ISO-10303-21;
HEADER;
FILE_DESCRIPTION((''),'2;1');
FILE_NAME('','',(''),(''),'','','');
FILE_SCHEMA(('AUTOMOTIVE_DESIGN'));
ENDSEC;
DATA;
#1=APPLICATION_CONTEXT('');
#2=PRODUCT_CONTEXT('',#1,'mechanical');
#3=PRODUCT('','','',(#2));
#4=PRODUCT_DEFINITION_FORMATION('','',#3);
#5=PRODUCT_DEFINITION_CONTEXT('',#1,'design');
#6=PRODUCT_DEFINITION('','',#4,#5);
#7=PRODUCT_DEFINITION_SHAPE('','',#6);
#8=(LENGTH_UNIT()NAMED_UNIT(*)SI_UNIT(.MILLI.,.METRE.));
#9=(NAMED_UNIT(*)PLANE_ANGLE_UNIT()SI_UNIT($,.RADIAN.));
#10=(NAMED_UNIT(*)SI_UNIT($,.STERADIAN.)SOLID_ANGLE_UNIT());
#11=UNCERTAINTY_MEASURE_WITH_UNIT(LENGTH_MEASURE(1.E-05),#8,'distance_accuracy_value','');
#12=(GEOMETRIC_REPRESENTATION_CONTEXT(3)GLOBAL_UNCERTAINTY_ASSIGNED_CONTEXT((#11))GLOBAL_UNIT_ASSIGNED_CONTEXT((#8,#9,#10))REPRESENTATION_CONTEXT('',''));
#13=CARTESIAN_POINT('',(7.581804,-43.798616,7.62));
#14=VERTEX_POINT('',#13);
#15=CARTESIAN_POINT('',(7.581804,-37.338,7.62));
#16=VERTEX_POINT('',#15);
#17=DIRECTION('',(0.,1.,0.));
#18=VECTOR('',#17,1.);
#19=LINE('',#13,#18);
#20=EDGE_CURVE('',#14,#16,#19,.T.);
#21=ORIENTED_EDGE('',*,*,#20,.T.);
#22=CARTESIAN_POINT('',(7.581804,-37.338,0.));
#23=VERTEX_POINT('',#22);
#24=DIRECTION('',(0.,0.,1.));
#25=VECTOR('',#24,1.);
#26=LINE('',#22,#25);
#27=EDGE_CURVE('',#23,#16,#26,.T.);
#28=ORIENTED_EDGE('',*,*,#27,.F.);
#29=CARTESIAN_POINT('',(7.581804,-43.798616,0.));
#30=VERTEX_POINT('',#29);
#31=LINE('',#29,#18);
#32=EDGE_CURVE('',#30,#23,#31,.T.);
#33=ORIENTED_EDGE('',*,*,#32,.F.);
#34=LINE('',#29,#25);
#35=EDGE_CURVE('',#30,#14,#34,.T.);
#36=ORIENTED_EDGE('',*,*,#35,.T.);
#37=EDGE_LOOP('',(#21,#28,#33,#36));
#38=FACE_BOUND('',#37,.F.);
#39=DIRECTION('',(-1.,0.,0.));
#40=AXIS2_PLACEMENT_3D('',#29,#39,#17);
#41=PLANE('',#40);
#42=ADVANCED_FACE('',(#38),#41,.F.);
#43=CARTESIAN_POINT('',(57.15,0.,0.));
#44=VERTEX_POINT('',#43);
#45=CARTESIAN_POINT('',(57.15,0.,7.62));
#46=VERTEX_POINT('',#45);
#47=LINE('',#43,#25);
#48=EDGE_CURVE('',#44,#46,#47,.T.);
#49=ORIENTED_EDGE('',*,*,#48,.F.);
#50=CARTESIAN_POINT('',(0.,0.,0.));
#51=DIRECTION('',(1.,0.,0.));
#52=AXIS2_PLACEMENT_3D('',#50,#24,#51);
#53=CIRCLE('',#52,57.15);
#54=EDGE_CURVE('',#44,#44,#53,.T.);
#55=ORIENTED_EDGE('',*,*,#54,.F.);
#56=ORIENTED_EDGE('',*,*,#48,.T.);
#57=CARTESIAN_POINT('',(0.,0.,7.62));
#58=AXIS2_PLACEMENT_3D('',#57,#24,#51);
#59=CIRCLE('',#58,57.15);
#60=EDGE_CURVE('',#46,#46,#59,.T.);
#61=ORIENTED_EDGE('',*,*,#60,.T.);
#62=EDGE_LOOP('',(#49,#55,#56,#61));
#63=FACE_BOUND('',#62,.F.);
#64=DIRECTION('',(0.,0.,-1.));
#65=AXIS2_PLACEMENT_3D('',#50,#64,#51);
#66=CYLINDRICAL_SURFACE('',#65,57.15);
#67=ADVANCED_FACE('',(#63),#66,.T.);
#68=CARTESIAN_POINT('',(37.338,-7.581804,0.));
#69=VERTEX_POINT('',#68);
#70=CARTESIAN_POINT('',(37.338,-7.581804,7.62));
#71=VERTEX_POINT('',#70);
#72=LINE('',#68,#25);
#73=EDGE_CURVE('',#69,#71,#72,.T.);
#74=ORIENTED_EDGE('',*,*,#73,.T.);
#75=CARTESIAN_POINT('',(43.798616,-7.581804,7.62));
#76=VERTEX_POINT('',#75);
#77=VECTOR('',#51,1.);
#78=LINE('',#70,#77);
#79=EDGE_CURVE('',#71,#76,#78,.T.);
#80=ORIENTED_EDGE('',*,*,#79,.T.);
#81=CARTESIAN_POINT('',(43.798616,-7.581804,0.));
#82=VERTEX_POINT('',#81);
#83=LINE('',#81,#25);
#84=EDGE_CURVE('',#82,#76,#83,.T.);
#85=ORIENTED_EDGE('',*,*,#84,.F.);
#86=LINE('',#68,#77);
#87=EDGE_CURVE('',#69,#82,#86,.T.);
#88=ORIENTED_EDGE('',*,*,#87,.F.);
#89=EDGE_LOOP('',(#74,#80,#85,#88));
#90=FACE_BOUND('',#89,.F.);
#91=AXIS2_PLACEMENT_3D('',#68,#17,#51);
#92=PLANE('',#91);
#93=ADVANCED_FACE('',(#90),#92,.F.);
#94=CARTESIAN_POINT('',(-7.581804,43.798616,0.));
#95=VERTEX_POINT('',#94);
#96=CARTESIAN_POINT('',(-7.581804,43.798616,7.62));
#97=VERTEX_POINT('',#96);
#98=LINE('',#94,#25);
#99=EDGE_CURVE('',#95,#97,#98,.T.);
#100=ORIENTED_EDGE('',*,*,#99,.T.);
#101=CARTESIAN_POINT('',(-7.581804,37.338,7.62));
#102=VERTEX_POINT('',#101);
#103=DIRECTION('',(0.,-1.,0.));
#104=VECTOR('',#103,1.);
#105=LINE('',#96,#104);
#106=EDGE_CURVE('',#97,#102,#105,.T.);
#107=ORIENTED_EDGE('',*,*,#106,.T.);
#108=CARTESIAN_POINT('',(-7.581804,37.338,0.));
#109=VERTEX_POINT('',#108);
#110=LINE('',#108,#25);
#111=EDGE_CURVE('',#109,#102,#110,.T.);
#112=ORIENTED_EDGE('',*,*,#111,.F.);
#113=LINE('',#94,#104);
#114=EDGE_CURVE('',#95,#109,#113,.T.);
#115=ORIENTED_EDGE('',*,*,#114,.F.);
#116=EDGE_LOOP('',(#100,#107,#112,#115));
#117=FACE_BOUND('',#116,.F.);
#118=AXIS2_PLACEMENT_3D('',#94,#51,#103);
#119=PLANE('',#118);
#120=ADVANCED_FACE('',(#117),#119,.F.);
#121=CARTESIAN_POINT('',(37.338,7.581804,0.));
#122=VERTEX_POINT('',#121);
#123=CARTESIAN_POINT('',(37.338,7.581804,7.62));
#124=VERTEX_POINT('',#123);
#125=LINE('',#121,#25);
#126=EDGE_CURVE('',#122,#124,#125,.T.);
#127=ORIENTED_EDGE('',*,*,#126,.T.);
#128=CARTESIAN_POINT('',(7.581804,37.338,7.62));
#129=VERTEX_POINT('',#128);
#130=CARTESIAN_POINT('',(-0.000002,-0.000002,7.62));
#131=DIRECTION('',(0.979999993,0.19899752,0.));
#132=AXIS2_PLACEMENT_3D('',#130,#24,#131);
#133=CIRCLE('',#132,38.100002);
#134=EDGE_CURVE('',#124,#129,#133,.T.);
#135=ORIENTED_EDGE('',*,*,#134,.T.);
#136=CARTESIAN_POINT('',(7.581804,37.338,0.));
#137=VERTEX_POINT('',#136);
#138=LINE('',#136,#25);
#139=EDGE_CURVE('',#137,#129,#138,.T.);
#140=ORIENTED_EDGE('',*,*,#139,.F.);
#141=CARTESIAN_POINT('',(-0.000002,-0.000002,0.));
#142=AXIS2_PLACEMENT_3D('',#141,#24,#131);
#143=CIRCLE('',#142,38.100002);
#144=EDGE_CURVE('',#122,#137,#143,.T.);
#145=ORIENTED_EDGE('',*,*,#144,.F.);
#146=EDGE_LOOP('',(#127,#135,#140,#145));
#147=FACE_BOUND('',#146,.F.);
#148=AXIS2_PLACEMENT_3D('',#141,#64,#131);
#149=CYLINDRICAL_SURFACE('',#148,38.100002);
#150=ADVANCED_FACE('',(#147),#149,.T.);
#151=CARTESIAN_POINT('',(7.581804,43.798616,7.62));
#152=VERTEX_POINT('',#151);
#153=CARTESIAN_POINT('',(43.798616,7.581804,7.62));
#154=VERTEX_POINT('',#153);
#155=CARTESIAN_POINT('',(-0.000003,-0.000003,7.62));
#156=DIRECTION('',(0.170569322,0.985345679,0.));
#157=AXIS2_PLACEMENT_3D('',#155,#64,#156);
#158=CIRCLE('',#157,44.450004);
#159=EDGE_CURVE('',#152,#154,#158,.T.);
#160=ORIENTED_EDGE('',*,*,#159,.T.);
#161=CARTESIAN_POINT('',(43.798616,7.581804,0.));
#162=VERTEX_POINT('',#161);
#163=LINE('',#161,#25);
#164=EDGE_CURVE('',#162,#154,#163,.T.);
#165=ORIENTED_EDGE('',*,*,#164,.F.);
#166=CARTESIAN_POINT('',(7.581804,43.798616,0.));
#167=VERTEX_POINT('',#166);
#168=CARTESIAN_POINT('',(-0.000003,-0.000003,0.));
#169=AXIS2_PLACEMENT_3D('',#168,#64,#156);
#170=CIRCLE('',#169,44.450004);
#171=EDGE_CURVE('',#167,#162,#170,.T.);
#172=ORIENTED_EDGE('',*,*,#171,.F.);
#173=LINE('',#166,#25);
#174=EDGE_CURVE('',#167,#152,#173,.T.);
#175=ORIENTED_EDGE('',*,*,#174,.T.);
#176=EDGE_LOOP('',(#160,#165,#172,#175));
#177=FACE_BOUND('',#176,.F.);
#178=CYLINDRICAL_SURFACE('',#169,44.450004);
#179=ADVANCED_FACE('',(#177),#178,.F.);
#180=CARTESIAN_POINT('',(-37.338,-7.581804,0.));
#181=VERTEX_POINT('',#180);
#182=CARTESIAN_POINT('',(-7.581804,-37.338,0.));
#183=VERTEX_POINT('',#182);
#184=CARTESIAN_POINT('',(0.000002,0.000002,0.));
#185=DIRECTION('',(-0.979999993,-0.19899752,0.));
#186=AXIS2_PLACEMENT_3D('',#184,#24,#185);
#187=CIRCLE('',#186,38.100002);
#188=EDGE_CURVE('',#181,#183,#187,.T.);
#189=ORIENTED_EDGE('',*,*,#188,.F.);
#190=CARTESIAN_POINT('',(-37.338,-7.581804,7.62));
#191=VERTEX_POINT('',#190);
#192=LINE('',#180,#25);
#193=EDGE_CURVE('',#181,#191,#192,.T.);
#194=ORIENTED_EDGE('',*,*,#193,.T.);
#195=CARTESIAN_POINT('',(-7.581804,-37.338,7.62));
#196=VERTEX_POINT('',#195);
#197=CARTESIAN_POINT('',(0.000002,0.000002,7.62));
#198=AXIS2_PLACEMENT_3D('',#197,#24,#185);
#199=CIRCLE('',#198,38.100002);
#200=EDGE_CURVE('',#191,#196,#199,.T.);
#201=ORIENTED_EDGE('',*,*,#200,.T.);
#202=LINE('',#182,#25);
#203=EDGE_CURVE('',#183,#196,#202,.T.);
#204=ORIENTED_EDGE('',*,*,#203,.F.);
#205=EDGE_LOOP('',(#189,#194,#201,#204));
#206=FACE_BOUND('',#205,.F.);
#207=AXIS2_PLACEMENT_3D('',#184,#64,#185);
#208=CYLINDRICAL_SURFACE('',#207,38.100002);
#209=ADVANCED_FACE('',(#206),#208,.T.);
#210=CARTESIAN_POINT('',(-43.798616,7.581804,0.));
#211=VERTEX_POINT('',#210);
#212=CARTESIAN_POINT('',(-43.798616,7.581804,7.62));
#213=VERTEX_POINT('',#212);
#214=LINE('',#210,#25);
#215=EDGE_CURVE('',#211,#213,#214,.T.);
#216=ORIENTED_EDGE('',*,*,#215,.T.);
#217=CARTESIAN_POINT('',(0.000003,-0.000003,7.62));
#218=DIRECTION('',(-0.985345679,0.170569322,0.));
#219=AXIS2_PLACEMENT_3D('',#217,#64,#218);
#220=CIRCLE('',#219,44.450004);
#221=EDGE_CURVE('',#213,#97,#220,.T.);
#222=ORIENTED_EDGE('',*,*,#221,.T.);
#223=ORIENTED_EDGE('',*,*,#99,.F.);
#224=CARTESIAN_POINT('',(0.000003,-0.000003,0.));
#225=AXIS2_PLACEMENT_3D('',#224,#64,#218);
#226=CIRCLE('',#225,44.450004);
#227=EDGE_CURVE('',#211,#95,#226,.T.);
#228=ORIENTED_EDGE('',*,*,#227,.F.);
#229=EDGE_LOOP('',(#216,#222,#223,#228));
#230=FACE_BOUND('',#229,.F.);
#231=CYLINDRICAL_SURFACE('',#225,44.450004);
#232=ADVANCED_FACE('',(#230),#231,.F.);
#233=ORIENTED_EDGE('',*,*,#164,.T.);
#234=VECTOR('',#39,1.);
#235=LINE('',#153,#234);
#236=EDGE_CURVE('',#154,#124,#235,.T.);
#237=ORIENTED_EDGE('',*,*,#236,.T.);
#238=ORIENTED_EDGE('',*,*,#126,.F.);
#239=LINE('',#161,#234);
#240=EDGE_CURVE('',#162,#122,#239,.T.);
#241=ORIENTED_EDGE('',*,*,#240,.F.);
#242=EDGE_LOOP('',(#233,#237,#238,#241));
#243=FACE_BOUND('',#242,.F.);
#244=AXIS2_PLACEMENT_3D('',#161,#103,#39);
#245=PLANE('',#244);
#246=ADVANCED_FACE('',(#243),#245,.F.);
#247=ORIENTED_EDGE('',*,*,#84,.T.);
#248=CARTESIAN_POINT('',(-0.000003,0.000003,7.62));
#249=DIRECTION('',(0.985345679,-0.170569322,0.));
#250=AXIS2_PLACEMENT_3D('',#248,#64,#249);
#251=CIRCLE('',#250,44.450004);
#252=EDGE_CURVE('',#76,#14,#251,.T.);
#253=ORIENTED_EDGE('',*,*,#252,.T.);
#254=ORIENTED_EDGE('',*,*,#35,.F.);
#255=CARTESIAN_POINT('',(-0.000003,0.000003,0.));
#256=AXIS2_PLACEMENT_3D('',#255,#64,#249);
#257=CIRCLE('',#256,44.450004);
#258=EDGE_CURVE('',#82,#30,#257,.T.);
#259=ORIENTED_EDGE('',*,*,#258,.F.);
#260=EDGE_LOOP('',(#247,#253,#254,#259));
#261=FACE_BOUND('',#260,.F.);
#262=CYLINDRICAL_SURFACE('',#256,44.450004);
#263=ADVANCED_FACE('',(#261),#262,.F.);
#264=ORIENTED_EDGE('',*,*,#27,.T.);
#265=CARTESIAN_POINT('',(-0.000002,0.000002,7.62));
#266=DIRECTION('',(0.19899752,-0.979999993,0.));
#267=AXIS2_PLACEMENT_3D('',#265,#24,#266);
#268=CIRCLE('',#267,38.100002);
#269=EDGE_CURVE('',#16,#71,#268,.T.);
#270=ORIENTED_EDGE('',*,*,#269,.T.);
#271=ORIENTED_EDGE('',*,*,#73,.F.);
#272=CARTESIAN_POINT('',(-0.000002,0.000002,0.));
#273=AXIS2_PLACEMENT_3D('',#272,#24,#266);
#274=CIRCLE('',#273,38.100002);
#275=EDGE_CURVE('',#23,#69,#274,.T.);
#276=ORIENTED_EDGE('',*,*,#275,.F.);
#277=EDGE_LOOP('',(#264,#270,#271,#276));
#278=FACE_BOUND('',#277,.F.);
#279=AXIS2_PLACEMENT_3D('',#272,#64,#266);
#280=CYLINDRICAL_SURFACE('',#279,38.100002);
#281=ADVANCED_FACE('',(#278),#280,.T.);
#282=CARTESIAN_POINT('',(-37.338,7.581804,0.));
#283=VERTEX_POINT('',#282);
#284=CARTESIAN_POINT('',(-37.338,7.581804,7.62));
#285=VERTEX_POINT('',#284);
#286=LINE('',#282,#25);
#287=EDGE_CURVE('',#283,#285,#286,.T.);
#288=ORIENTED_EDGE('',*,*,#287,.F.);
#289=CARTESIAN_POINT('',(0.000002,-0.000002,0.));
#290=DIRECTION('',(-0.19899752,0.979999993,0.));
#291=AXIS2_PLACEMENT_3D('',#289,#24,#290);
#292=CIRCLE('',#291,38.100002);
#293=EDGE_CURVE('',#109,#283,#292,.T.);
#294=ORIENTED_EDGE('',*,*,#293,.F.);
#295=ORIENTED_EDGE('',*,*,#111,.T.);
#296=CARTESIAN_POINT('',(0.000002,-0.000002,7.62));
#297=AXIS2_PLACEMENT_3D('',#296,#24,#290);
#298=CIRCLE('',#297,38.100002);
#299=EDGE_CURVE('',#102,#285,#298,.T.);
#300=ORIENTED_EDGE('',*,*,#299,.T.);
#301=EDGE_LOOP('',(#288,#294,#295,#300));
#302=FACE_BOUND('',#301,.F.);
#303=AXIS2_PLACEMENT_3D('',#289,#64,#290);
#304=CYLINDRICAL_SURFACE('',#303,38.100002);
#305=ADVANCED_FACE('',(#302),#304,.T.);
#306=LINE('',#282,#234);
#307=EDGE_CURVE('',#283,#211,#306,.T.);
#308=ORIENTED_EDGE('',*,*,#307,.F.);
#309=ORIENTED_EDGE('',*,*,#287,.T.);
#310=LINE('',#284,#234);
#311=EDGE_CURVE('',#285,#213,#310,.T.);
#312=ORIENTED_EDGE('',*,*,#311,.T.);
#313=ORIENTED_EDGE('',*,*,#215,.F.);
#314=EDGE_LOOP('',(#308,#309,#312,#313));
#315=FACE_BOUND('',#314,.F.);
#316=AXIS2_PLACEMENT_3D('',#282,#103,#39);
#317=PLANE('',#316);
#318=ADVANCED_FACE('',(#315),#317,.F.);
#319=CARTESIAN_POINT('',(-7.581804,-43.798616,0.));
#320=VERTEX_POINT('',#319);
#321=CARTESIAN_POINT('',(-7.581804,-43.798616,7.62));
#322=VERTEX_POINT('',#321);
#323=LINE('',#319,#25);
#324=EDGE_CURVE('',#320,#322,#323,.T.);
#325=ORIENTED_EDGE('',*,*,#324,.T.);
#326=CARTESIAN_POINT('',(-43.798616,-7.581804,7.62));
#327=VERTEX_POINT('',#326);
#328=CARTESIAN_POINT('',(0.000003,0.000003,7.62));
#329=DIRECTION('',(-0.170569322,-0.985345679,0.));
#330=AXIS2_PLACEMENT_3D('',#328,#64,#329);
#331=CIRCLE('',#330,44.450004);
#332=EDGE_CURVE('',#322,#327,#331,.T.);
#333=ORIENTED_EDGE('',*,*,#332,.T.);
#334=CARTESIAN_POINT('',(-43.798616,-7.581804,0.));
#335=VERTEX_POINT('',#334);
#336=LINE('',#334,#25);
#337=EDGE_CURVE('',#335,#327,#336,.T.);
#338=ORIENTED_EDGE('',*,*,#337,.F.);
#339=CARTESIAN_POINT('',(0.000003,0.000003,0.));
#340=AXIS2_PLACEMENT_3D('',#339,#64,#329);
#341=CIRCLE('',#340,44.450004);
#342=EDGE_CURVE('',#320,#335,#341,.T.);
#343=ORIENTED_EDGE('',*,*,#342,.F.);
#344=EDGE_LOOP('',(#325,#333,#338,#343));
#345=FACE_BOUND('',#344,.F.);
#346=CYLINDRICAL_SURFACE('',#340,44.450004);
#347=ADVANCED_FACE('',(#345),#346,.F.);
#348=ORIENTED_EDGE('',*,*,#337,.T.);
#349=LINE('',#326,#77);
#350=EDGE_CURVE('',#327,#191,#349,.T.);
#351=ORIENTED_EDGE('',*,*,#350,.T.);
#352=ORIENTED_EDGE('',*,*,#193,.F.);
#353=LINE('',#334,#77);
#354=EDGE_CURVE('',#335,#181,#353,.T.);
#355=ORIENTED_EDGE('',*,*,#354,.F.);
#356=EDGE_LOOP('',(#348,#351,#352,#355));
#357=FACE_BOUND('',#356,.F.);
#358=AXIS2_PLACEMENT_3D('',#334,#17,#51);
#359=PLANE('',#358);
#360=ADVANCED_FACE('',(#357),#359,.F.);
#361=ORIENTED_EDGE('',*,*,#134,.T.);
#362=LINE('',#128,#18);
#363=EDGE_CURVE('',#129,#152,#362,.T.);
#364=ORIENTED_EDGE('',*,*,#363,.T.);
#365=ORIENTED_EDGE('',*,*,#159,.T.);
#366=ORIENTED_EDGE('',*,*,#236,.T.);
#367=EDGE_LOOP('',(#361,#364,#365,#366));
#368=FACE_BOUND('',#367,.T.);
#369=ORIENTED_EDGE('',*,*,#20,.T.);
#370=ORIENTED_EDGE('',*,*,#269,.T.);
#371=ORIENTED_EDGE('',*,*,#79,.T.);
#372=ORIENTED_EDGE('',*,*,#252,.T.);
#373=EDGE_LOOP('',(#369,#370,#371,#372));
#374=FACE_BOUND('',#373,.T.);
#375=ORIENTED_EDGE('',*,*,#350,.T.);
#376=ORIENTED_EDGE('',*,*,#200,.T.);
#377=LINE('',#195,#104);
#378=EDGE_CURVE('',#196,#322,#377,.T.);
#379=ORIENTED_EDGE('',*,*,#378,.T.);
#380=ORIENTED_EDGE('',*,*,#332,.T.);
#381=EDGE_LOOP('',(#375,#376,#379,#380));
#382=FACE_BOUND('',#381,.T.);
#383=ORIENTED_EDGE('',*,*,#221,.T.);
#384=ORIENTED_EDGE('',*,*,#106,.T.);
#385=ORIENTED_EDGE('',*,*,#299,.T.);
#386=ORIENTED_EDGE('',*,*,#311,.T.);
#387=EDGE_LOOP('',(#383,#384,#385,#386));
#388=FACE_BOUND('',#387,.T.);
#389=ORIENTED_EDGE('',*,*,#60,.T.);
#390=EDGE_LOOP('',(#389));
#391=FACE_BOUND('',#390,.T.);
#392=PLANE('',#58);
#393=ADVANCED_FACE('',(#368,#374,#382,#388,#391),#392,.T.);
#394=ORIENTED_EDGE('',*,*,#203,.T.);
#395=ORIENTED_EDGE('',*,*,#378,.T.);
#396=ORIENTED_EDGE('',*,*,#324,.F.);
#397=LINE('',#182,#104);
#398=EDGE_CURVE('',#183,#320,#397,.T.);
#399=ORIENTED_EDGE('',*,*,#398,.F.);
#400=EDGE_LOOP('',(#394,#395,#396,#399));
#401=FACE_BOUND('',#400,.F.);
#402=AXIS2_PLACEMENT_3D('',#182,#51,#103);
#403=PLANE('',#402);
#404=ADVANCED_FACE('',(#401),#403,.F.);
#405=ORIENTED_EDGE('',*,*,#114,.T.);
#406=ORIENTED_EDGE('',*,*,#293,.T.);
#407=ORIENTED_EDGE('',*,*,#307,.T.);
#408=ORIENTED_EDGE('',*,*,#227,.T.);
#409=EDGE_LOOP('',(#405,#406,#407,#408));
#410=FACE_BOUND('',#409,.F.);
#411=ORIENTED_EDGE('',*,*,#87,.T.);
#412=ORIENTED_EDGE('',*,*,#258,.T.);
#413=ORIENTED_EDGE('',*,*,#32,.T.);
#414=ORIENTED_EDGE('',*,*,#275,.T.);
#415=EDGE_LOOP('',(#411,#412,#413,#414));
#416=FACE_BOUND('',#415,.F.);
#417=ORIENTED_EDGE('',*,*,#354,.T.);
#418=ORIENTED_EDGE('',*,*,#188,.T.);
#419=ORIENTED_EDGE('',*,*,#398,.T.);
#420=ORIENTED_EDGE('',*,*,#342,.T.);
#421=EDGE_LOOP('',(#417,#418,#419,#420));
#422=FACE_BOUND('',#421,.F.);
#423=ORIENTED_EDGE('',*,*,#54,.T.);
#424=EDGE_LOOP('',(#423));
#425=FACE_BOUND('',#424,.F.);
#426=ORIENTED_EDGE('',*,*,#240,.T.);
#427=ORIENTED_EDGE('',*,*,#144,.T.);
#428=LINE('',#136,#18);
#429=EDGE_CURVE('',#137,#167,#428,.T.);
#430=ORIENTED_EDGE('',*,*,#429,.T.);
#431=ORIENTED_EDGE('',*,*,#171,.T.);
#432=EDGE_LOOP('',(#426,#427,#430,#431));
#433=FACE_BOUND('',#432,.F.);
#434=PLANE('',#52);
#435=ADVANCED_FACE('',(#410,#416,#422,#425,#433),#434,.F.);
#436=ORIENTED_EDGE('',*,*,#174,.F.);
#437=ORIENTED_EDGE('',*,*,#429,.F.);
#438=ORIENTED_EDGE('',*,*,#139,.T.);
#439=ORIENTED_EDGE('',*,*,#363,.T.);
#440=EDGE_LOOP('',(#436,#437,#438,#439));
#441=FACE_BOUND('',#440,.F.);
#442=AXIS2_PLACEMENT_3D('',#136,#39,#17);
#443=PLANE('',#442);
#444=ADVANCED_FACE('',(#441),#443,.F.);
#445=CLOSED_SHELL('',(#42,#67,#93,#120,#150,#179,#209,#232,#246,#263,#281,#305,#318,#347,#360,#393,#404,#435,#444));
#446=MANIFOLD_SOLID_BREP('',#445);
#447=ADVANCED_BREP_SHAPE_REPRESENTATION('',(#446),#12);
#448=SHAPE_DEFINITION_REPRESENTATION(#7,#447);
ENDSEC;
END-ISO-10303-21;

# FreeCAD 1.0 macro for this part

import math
import FreeCAD as App
import Part
import Sketcher

V = App.Vector
Q = App.Units.Quantity

doc = App.newDocument("Part")
params = doc.addObject("Spreadsheet::Sheet", "Params")
for row, (alias, value) in enumerate([
    ("sketch1_diameter", "4.5 in"),
    ("sketch1_radius", "1.5000001 in"),
    ("sketch1_radius2", "1.7500001 in"),
    ("pad1_length", "0.3 in"),
], start=1):
    params.set(f"A{row}", alias)
    params.set(f"B{row}", "=" + value)
    params.setAlias(f"B{row}", alias)

body = doc.addObject("PartDesign::Body", "Body")

# Sketch on XY plane
sketch1 = body.newObject("Sketcher::SketchObject", "Sketch")
sketch1.AttachmentSupport = (doc.getObject("XY_Plane"), [""])
sketch1.MapMode = "FlatFace"
sketch1.addGeometry([
    Part.Circle(V(0, 0, 0), V(0, 0, 1), 57),  # 0
    Part.ArcOfCircle(Part.Circle(V(0, 0, 0), V(0, 0, 1), 44), math.radians(100), math.radians(170)),  # 1
    Part.LineSegment(V(-8, 44, 0), V(-8, 37, 0)),  # 2
    Part.ArcOfCircle(Part.Circle(V(0, 0, 0), V(0, 0, 1), 38), math.radians(101), math.radians(169)),  # 3
    Part.LineSegment(V(-37, 8, 0), V(-44, 8, 0)),  # 4
    Part.ArcOfCircle(Part.Circle(V(0, 0, 0), V(0, 0, 1), 38), math.radians(-169), math.radians(-101)),  # 5
    Part.LineSegment(V(-8, -37, 0), V(-8, -44, 0)),  # 6
    Part.ArcOfCircle(Part.Circle(V(0, 0, 0), V(0, 0, 1), 44), math.radians(-170), math.radians(-100)),  # 7
    Part.LineSegment(V(-44, -8, 0), V(-37, -8, 0)),  # 8
    Part.ArcOfCircle(Part.Circle(V(0, 0, 0), V(0, 0, 1), 38), math.radians(-79), math.radians(-11)),  # 9
    Part.LineSegment(V(37, -8, 0), V(44, -8, 0)),  # 10
    Part.ArcOfCircle(Part.Circle(V(0, 0, 0), V(0, 0, 1), 44), math.radians(-80), math.radians(-10)),  # 11
    Part.LineSegment(V(8, -44, 0), V(8, -37, 0)),  # 12
    Part.ArcOfCircle(Part.Circle(V(0, 0, 0), V(0, 0, 1), 38), math.radians(11), math.radians(79)),  # 13
    Part.LineSegment(V(8, 37, 0), V(8, 44, 0)),  # 14
    Part.ArcOfCircle(Part.Circle(V(0, 0, 0), V(0, 0, 1), 44), math.radians(10), math.radians(80)),  # 15
    Part.LineSegment(V(44, 8, 0), V(37, 8, 0)),  # 16
], False)
sketch1.addConstraint([
    Sketcher.Constraint("Coincident", 1, 1, 2, 1),
    Sketcher.Constraint("Coincident", 2, 2, 3, 1),
    Sketcher.Constraint("Coincident", 3, 2, 4, 1),
    Sketcher.Constraint("Coincident", 4, 2, 1, 2),
    Sketcher.Constraint("Coincident", 5, 2, 6, 1),
    Sketcher.Constraint("Coincident", 6, 2, 7, 2),
    Sketcher.Constraint("Coincident", 7, 1, 8, 1),
    Sketcher.Constraint("Coincident", 8, 2, 5, 1),
    Sketcher.Constraint("Coincident", 9, 2, 10, 1),
    Sketcher.Constraint("Coincident", 10, 2, 11, 2),
    Sketcher.Constraint("Coincident", 11, 1, 12, 1),
    Sketcher.Constraint("Coincident", 12, 2, 9, 1),
    Sketcher.Constraint("Coincident", 13, 2, 14, 1),
    Sketcher.Constraint("Coincident", 14, 2, 15, 2),
    Sketcher.Constraint("Coincident", 15, 1, 16, 1),
    Sketcher.Constraint("Coincident", 16, 2, 13, 1),
    Sketcher.Constraint("Vertical", 2),
    Sketcher.Constraint("Horizontal", 4),
    Sketcher.Constraint("Vertical", 6),
    Sketcher.Constraint("Horizontal", 8),
    Sketcher.Constraint("Horizontal", 10),
    Sketcher.Constraint("Vertical", 12),
    Sketcher.Constraint("Vertical", 14),
    Sketcher.Constraint("Horizontal", 16),
    Sketcher.Constraint("Coincident", 0, 3, -1, 1),
    Sketcher.Constraint("Coincident", 1, 3, -1, 1),
    Sketcher.Constraint("Coincident", 3, 3, -1, 1),
    Sketcher.Constraint("Coincident", 5, 3, -1, 1),
    Sketcher.Constraint("Coincident", 7, 3, -1, 1),
    Sketcher.Constraint("Coincident", 9, 3, -1, 1),
    Sketcher.Constraint("Coincident", 11, 3, -1, 1),
    Sketcher.Constraint("Coincident", 13, 3, -1, 1),
    Sketcher.Constraint("Coincident", 15, 3, -1, 1),
    Sketcher.Constraint("Equal", 3, 5),
    Sketcher.Constraint("Equal", 1, 7),
    Sketcher.Constraint("Equal", 5, 9),
    Sketcher.Constraint("Equal", 7, 11),
    Sketcher.Constraint("Equal", 9, 13),
    Sketcher.Constraint("Equal", 11, 15),
    Sketcher.Constraint("Horizontal", 8, 2, 9, 2),
    Sketcher.Constraint("Horizontal", 6, 2, 11, 1),
    Sketcher.Constraint("Horizontal", 2, 2, 13, 2),
    Sketcher.Constraint("Horizontal", 4, 2, 15, 1),
    Sketcher.Constraint("Vertical", 2, 2, 5, 2),
    Sketcher.Constraint("Vertical", 4, 2, 7, 1),
    Sketcher.Constraint("Equal", 16, 2),
    Sketcher.Constraint("Diameter", 0, Q("4.5 in")),
    Sketcher.Constraint("Radius", 3, Q("1.5000001 in")),
    Sketcher.Constraint("Radius", 1, Q("1.7500001 in")),
    Sketcher.Constraint("DistanceY", -1, 1, 2, 2, Q("1.47 in")),
])
sketch1.setExpression("Constraints[46]", "Params.sketch1_diameter")
sketch1.setExpression("Constraints[47]", "Params.sketch1_radius")
sketch1.setExpression("Constraints[48]", "Params.sketch1_radius2")
pad1 = body.newObject("PartDesign::Pad", "Pad")
pad1.Profile = sketch1
pad1.setExpression("Length", "Params.pad1_length")

doc.recompute()
